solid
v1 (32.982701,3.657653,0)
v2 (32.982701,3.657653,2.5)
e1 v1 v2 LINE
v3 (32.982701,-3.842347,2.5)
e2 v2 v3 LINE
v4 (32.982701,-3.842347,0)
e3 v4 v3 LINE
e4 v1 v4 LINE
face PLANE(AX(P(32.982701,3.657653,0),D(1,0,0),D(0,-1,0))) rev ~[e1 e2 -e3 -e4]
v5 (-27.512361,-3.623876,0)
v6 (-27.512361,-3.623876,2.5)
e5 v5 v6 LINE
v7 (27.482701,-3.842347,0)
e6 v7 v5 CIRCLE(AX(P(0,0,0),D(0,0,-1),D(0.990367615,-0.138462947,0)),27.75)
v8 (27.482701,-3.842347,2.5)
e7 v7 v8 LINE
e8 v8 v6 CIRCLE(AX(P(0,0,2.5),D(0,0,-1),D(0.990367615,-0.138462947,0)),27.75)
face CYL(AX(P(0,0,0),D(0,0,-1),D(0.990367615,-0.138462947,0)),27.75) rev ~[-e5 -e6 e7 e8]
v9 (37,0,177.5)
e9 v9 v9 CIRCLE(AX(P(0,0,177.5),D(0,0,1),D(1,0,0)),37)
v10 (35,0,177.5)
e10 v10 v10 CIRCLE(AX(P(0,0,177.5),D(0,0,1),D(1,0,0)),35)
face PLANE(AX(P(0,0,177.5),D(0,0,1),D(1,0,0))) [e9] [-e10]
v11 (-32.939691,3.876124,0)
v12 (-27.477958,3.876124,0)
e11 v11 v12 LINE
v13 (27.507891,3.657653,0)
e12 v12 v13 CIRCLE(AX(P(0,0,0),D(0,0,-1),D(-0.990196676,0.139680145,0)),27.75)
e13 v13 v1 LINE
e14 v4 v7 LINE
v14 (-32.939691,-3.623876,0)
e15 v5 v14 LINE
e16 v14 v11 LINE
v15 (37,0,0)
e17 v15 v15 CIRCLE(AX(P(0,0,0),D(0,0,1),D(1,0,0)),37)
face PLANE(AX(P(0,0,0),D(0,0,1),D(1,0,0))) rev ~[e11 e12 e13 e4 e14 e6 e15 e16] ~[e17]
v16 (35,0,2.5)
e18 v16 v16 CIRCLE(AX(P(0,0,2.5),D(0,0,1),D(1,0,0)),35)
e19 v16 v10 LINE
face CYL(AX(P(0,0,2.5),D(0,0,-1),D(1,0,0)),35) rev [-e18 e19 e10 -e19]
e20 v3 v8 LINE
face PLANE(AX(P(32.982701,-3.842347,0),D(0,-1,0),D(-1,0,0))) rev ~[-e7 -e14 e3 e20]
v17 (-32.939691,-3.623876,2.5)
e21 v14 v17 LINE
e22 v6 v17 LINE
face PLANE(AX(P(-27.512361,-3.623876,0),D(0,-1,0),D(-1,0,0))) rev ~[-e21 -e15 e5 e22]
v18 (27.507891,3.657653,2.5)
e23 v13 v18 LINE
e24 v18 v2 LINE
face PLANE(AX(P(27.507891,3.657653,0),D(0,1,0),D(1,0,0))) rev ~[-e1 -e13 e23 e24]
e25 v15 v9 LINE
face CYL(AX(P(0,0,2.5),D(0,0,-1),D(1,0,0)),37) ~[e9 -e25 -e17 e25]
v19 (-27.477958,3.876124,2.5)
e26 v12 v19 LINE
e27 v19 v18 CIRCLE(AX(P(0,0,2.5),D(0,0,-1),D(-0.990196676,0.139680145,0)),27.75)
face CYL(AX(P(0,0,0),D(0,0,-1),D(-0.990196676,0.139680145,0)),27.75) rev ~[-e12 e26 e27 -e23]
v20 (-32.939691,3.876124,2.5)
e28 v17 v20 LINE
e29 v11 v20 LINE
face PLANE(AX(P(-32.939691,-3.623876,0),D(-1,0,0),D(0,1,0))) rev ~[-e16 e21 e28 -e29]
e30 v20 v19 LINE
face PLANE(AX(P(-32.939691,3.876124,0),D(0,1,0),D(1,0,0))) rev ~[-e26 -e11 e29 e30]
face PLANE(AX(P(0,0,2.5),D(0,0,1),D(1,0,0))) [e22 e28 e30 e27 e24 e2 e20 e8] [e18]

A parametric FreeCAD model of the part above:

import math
import FreeCAD as App
import Part
import Sketcher
from FreeCAD import Vector

doc = App.newDocument("Part")
body = doc.addObject("PartDesign::Body", "Body")

# Sketch on XY plane
sketch1 = body.newObject("Sketcher::SketchObject", "Sketch")
sketch1.AttachmentSupport = (doc.getObject("XY_Plane"), [""])
sketch1.MapMode = "FlatFace"
sketch1.addGeometry(Part.Circle(Vector(0, 0, 0), Vector(0, 0, 1), 37), False)
sketch1.addGeometry(Part.LineSegment(Vector(32.982701, 3.657653, 0), Vector(32.982701, -3.842347, 0)), False)
sketch1.addGeometry(Part.LineSegment(Vector(32.982701, -3.842347, 0), Vector(27.482701, -3.842347, 0)), False)
sketch1.addGeometry(Part.ArcOfCircle(Part.Circle(Vector(0, 0, 0), Vector(0, 0, 1), 27.75), math.radians(-172.496306), math.radians(-7.958913)), False)
sketch1.addGeometry(Part.LineSegment(Vector(-27.512361, -3.623876, 0), Vector(-32.939691, -3.623876, 0)), False)
sketch1.addGeometry(Part.LineSegment(Vector(-32.939691, -3.623876, 0), Vector(-32.939691, 3.876124, 0)), False)
sketch1.addGeometry(Part.LineSegment(Vector(-32.939691, 3.876124, 0), Vector(-27.477958, 3.876124, 0)), False)
sketch1.addGeometry(Part.ArcOfCircle(Part.Circle(Vector(0, 0, 0), Vector(0, 0, 1), 27.75), math.radians(7.574043), math.radians(171.970662)), False)
sketch1.addGeometry(Part.LineSegment(Vector(27.507891, 3.657653, 0), Vector(32.982701, 3.657653, 0)), False)
sketch1.addConstraint(Sketcher.Constraint("Coincident", 1, 2, 2, 1))
sketch1.addConstraint(Sketcher.Constraint("Coincident", 2, 2, 3, 2))
sketch1.addConstraint(Sketcher.Constraint("Coincident", 3, 1, 4, 1))
sketch1.addConstraint(Sketcher.Constraint("Coincident", 4, 2, 5, 1))
sketch1.addConstraint(Sketcher.Constraint("Coincident", 5, 2, 6, 1))
sketch1.addConstraint(Sketcher.Constraint("Coincident", 6, 2, 7, 2))
sketch1.addConstraint(Sketcher.Constraint("Coincident", 7, 1, 8, 1))
sketch1.addConstraint(Sketcher.Constraint("Coincident", 8, 2, 1, 1))
sketch1.addConstraint(Sketcher.Constraint("Vertical", 1))
sketch1.addConstraint(Sketcher.Constraint("Horizontal", 2))
sketch1.addConstraint(Sketcher.Constraint("Horizontal", 4))
sketch1.addConstraint(Sketcher.Constraint("Vertical", 5))
sketch1.addConstraint(Sketcher.Constraint("Horizontal", 6))
sketch1.addConstraint(Sketcher.Constraint("Horizontal", 8))
sketch1.addConstraint(Sketcher.Constraint("Coincident", 0, 3, -1, 1))
sketch1.addConstraint(Sketcher.Constraint("Coincident", 3, 3, -1, 1))
sketch1.addConstraint(Sketcher.Constraint("Coincident", 7, 3, -1, 1))
sketch1.addConstraint(Sketcher.Constraint("Equal", 3, 7))
sketch1.addConstraint(Sketcher.Constraint("Equal", 1, 5))
sketch1.addConstraint(Sketcher.Constraint("Diameter", 0, 74.0))
sketch1.addConstraint(Sketcher.Constraint("Radius", 3, 27.75))
sketch1.addConstraint(Sketcher.Constraint("DistanceX", 2, 2, 2, 1, 5.5))
sketch1.addConstraint(Sketcher.Constraint("DistanceY", 1, 2, 1, 1, 7.5))
sketch1.addConstraint(Sketcher.Constraint("DistanceX", 4, 2, 4, 1, 5.42733))
sketch1.addConstraint(Sketcher.Constraint("DistanceX", 8, 1, 8, 2, 5.47481))
sketch1.addConstraint(Sketcher.Constraint("DistanceX", 6, 1, 6, 2, 5.461733))
pad1 = body.newObject("PartDesign::Pad", "Pad")
pad1.Profile = sketch1
pad1.Length = 2.5

# Sketch on XY plane
sketch2 = body.newObject("Sketcher::SketchObject", "Sketch001")
sketch2.AttachmentSupport = (doc.getObject("XY_Plane"), [""])
sketch2.MapMode = "FlatFace"
sketch2.AttachmentOffset = App.Placement(Vector(0, 0, 2.5), App.Rotation())
sketch2.addGeometry(Part.Circle(Vector(0, 0, 0), Vector(0, 0, 1), 37), False)
sketch2.addGeometry(Part.Circle(Vector(0, 0, 0), Vector(0, 0, 1), 35), False)
sketch2.addConstraint(Sketcher.Constraint("Coincident", 0, 3, -1, 1))
sketch2.addConstraint(Sketcher.Constraint("Coincident", 1, 3, -1, 1))
sketch2.addConstraint(Sketcher.Constraint("Diameter", 0, 74.0))
sketch2.addConstraint(Sketcher.Constraint("Diameter", 1, 70.0))
pad2 = body.newObject("PartDesign::Pad", "Pad001")
pad2.Profile = sketch2
pad2.Length = 175

doc.recompute()
